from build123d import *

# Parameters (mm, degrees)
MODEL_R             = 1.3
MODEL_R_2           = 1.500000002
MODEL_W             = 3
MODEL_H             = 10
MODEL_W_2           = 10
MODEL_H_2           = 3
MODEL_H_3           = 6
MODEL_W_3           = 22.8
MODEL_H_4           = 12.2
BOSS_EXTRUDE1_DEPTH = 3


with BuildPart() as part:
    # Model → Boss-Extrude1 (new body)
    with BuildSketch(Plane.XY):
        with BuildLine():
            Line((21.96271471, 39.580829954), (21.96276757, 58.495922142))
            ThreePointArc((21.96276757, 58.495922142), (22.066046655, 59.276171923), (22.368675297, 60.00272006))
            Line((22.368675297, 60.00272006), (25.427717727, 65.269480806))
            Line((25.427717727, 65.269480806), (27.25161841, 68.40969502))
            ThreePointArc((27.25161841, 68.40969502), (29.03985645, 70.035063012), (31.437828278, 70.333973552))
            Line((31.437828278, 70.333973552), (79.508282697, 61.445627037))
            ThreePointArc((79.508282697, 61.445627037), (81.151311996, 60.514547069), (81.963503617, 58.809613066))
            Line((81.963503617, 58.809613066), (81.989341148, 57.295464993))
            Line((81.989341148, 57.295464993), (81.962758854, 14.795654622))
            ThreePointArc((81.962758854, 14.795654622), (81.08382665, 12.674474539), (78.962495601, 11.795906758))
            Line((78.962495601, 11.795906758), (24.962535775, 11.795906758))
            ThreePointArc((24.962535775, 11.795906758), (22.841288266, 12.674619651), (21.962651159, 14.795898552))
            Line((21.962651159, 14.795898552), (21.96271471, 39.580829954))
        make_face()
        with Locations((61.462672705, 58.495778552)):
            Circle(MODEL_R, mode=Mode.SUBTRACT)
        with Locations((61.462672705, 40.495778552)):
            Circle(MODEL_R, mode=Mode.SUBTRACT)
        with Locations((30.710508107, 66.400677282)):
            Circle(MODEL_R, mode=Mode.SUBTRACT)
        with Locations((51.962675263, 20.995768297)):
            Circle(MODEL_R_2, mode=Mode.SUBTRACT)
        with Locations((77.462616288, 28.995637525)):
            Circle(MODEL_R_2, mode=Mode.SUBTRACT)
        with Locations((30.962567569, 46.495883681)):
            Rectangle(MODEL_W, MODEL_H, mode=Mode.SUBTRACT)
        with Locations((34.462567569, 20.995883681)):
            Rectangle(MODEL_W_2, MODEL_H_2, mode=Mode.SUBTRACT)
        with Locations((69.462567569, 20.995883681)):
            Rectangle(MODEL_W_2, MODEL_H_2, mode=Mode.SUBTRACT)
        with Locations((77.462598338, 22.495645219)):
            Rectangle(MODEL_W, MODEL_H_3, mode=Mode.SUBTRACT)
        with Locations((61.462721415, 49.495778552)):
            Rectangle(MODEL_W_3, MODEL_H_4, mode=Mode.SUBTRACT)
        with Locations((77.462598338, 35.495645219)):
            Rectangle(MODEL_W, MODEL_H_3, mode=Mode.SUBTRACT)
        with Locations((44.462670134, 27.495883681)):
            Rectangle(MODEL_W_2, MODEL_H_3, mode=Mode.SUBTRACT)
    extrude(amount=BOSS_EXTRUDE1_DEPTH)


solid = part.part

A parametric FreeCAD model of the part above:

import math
import FreeCAD as App
import Part
import Sketcher
from FreeCAD import Vector

doc = App.newDocument("Part")
body = doc.addObject("PartDesign::Body", "Body")

sketch1 = doc.addObject("Sketcher::SketchObject", "Sketch")
body.addObject(sketch1)
sketch1.AttachmentSupport = (doc.XY_Plane, [""])
sketch1.MapMode = "FlatFace"
sketch1.addGeometry([
    Part.LineSegment(Vector(22, 58.5, 0), Vector(22, 39.6, 0)),
    Part.LineSegment(Vector(22, 39.6, 0), Vector(22, 14.8, 0)),
    Part.ArcOfCircle(Part.Circle(Vector(25, 14.8, 0), Vector(0, 0, 1), 3), math.radians(180), math.radians(270)),
    Part.LineSegment(Vector(25, 11.8, 0), Vector(79, 11.8, 0)),
    Part.ArcOfCircle(Part.Circle(Vector(79, 14.8, 0), Vector(0, 0, 1), 3), math.radians(-90), math.radians(0)),
    Part.LineSegment(Vector(82, 14.8, 0), Vector(82, 57.3, 0)),
    Part.LineSegment(Vector(82, 57.3, 0), Vector(82, 58.8, 0)),
    Part.ArcOfCircle(Part.Circle(Vector(78.9, 58.4, 0), Vector(0, 0, 1), 3.1), math.radians(8), math.radians(78)),
    Part.LineSegment(Vector(79.5, 61.4, 0), Vector(31.4, 70.3, 0)),
    Part.ArcOfCircle(Part.Circle(Vector(30.7, 66.4, 0), Vector(0, 0, 1), 4), math.radians(80), math.radians(150)),
    Part.LineSegment(Vector(27.3, 68.4, 0), Vector(25.4, 65.3, 0)),
    Part.LineSegment(Vector(25.4, 65.3, 0), Vector(22.4, 60, 0)),
    Part.ArcOfCircle(Part.Circle(Vector(25, 58.5, 0), Vector(0, 0, 1), 3), math.radians(150), math.radians(180)),
    Part.LineSegment(Vector(76, 19.5, 0), Vector(76, 25.5, 0)),
    Part.LineSegment(Vector(76, 25.5, 0), Vector(79, 25.5, 0)),
    Part.LineSegment(Vector(79, 25.5, 0), Vector(79, 19.5, 0)),
    Part.LineSegment(Vector(79, 19.5, 0), Vector(76, 19.5, 0)),
    Part.LineSegment(Vector(64.5, 19.5, 0), Vector(64.5, 22.5, 0)),
    Part.LineSegment(Vector(64.5, 22.5, 0), Vector(74.5, 22.5, 0)),
    Part.LineSegment(Vector(74.5, 22.5, 0), Vector(74.5, 19.5, 0)),
    Part.LineSegment(Vector(74.5, 19.5, 0), Vector(64.5, 19.5, 0)),
    Part.Circle(Vector(77.5, 29, 0), Vector(0, 0, 1), 1.5),
    Part.LineSegment(Vector(76, 32.5, 0), Vector(76, 38.5, 0)),
    Part.LineSegment(Vector(76, 38.5, 0), Vector(79, 38.5, 0)),
    Part.LineSegment(Vector(79, 38.5, 0), Vector(79, 32.5, 0)),
    Part.LineSegment(Vector(79, 32.5, 0), Vector(76, 32.5, 0)),
    Part.Circle(Vector(61.5, 40.5, 0), Vector(0, 0, 1), 1.3),
    Part.Circle(Vector(52, 21, 0), Vector(0, 0, 1), 1.5),
    Part.LineSegment(Vector(39.5, 24.5, 0), Vector(39.5, 30.5, 0)),
    Part.LineSegment(Vector(39.5, 30.5, 0), Vector(49.5, 30.5, 0)),
    Part.LineSegment(Vector(49.5, 30.5, 0), Vector(49.5, 24.5, 0)),
    Part.LineSegment(Vector(49.5, 24.5, 0), Vector(39.5, 24.5, 0)),
    Part.LineSegment(Vector(29.5, 19.5, 0), Vector(29.5, 22.5, 0)),
    Part.LineSegment(Vector(29.5, 22.5, 0), Vector(39.5, 22.5, 0)),
    Part.LineSegment(Vector(39.5, 22.5, 0), Vector(39.5, 19.5, 0)),
    Part.LineSegment(Vector(39.5, 19.5, 0), Vector(29.5, 19.5, 0)),
    Part.LineSegment(Vector(50.1, 43.4, 0), Vector(50.1, 55.6, 0)),
    Part.LineSegment(Vector(50.1, 55.6, 0), Vector(72.9, 55.6, 0)),
    Part.LineSegment(Vector(72.9, 55.6, 0), Vector(72.9, 43.4, 0)),
    Part.LineSegment(Vector(72.9, 43.4, 0), Vector(50.1, 43.4, 0)),
    Part.Circle(Vector(61.5, 58.5, 0), Vector(0, 0, 1), 1.3),
    Part.LineSegment(Vector(29.5, 41.5, 0), Vector(29.5, 51.5, 0)),
    Part.LineSegment(Vector(29.5, 51.5, 0), Vector(32.5, 51.5, 0)),
    Part.LineSegment(Vector(32.5, 51.5, 0), Vector(32.5, 41.5, 0)),
    Part.LineSegment(Vector(32.5, 41.5, 0), Vector(29.5, 41.5, 0)),
    Part.Circle(Vector(30.7, 66.4, 0), Vector(0, 0, 1), 1.3),
], False)
sketch1.addConstraint([
    Sketcher.Constraint("Coincident", 0, 2, 1, 1),
    Sketcher.Constraint("Tangent", 1, 2, 2, 1),
    Sketcher.Constraint("Coincident", 2, 2, 3, 1),
    Sketcher.Constraint("Coincident", 3, 2, 4, 1),
    Sketcher.Constraint("Coincident", 4, 2, 5, 1),
    Sketcher.Constraint("Coincident", 5, 2, 6, 1),
    Sketcher.Constraint("Coincident", 6, 2, 7, 1),
    Sketcher.Constraint("Coincident", 7, 2, 8, 1),
    Sketcher.Constraint("Coincident", 8, 2, 9, 1),
    Sketcher.Constraint("Coincident", 9, 2, 10, 1),
    Sketcher.Constraint("Coincident", 10, 2, 11, 1),
    Sketcher.Constraint("Coincident", 11, 2, 12, 1),
    Sketcher.Constraint("Coincident", 12, 2, 0, 1),
    Sketcher.Constraint("Coincident", 13, 2, 14, 1),
    Sketcher.Constraint("Coincident", 14, 2, 15, 1),
    Sketcher.Constraint("Coincident", 15, 2, 16, 1),
    Sketcher.Constraint("Coincident", 16, 2, 13, 1),
    Sketcher.Constraint("Coincident", 17, 2, 18, 1),
    Sketcher.Constraint("Coincident", 18, 2, 19, 1),
    Sketcher.Constraint("Coincident", 19, 2, 20, 1),
    Sketcher.Constraint("Coincident", 20, 2, 17, 1),
    Sketcher.Constraint("Coincident", 22, 2, 23, 1),
    Sketcher.Constraint("Coincident", 23, 2, 24, 1),
    Sketcher.Constraint("Coincident", 24, 2, 25, 1),
    Sketcher.Constraint("Coincident", 25, 2, 22, 1),
    Sketcher.Constraint("Coincident", 28, 2, 29, 1),
    Sketcher.Constraint("Coincident", 29, 2, 30, 1),
    Sketcher.Constraint("Coincident", 30, 2, 31, 1),
    Sketcher.Constraint("Coincident", 31, 2, 28, 1),
    Sketcher.Constraint("Coincident", 32, 2, 33, 1),
    Sketcher.Constraint("Coincident", 33, 2, 34, 1),
    Sketcher.Constraint("Coincident", 34, 2, 35, 1),
    Sketcher.Constraint("Coincident", 35, 2, 32, 1),
    Sketcher.Constraint("Coincident", 36, 2, 37, 1),
    Sketcher.Constraint("Coincident", 37, 2, 38, 1),
    Sketcher.Constraint("Coincident", 38, 2, 39, 1),
    Sketcher.Constraint("Coincident", 39, 2, 36, 1),
    Sketcher.Constraint("Coincident", 41, 2, 42, 1),
    Sketcher.Constraint("Coincident", 42, 2, 43, 1),
    Sketcher.Constraint("Coincident", 43, 2, 44, 1),
    Sketcher.Constraint("Coincident", 44, 2, 41, 1),
    Sketcher.Constraint("Horizontal", 3),
    Sketcher.Constraint("Vertical", 13),
    Sketcher.Constraint("Horizontal", 14),
    Sketcher.Constraint("Vertical", 15),
    Sketcher.Constraint("Horizontal", 16),
    Sketcher.Constraint("Vertical", 17),
    Sketcher.Constraint("Horizontal", 18),
    Sketcher.Constraint("Vertical", 19),
    Sketcher.Constraint("Horizontal", 20),
    Sketcher.Constraint("Vertical", 22),
    Sketcher.Constraint("Horizontal", 23),
    Sketcher.Constraint("Vertical", 24),
    Sketcher.Constraint("Horizontal", 25),
    Sketcher.Constraint("Vertical", 28),
    Sketcher.Constraint("Horizontal", 29),
    Sketcher.Constraint("Vertical", 30),
    Sketcher.Constraint("Horizontal", 31),
    Sketcher.Constraint("Vertical", 32),
    Sketcher.Constraint("Horizontal", 33),
    Sketcher.Constraint("Vertical", 34),
    Sketcher.Constraint("Horizontal", 35),
    Sketcher.Constraint("Vertical", 36),
    Sketcher.Constraint("Horizontal", 37),
    Sketcher.Constraint("Vertical", 38),
    Sketcher.Constraint("Horizontal", 39),
    Sketcher.Constraint("Vertical", 41),
    Sketcher.Constraint("Horizontal", 42),
    Sketcher.Constraint("Vertical", 43),
    Sketcher.Constraint("Horizontal", 44),
    Sketcher.Constraint("Equal", 21, 27),
    Sketcher.Constraint("Equal", 26, 40),
    Sketcher.Constraint("Equal", 40, 45),
    Sketcher.Constraint("Parallel", 0, 1),
    Sketcher.Constraint("Parallel", 10, 11),
    Sketcher.Constraint("Horizontal", 18, 2, 32, 2),
    Sketcher.Constraint("Horizontal", 20, 2, 34, 2),
    Sketcher.Constraint("Vertical", 26, 3, 40, 3),
    Sketcher.Constraint("Vertical", 16, 2, 22, 2),
    Sketcher.Constraint("Vertical", 15, 2, 23, 2),
    Sketcher.Constraint("Vertical", 35, 2, 41, 2),
    Sketcher.Constraint("Equal", 20, 29),
    Sketcher.Constraint("Equal", 31, 33),
    Sketcher.Constraint("Equal", 25, 42),
    Sketcher.Constraint("Equal", 44, 17),
    Sketcher.Constraint("Equal", 15, 22),
    Sketcher.Constraint("Equal", 24, 28),
    Sketcher.Constraint("Equal", 35, 41),
    Sketcher.Constraint("Diameter", 21, 3.0),
    Sketcher.Constraint("Diameter", 26, 2.6),
    Sketcher.Constraint("DistanceX", 14, 1, 14, 2, 3.0),
    Sketcher.Constraint("DistanceX", 18, 1, 18, 2, 10.0),
    Sketcher.Constraint("DistanceY", 13, 1, 13, 2, 6.0),
    Sketcher.Constraint("DistanceX", 37, 1, 37, 2, 22.8),
    Sketcher.Constraint("DistanceY", 36, 1, 36, 2, 12.2),
    Sketcher.Constraint("DistanceY", 26, 3, 40, 3, 18.0),
    Sketcher.Constraint("DistanceY", 13, 2, 22, 2, 13.0),
    Sketcher.Constraint("DistanceY", 17, 2, 29, 2, 8.0),
    Sketcher.Constraint("DistanceY", 28, 2, 43, 2, 11.0),
    Sketcher.Constraint("DistanceY", 36, 2, 40, 3, 2.9),
    Sketcher.Constraint("Radius", 4, 3.00024),
    Sketcher.Constraint("Radius", 9, 4.000052),
    Sketcher.Constraint("Radius", 2, 2.999984),
    Sketcher.Constraint("Radius", 7, 3.141134),
    Sketcher.Constraint("Radius", 12, 3.000427),
    Sketcher.Constraint("DistanceX", 3, 1, 3, 2, 53.99996),
    Sketcher.Constraint("DistanceY", -1, 1, 9, 3, 66.4006),
    Sketcher.Constraint("DistanceY", -1, 1, 1, 2, 14.795899),
    Sketcher.Constraint("DistanceX", -1, 1, 13, 2, 75.962598),
    Sketcher.Constraint("DistanceY", 40, 3, 45, 3, 7.904899),
    Sketcher.Constraint("DistanceX", 0, 2, 9, 3, 8.747798),
    Sketcher.Constraint("DistanceX", 10, 2, 9, 2, 1.823901),
    Sketcher.Constraint("DistanceY", 4, 3, 13, 2, 10.699498),
    Sketcher.Constraint("DistanceX", 12, 2, 41, 2, 7.4998),
    Sketcher.Constraint("Distance", 1, 24.784931),
    Sketcher.Constraint("Distance", 5, 42.499819),
    Sketcher.Constraint("Distance", 6, 1.514369),
    Sketcher.Constraint("Distance", 11, 6.09069),
    Sketcher.Constraint("DistanceY", -1, 1, 2, 3, 14.795891),
    Sketcher.Constraint("DistanceX", -1, 1, 4, 3, 78.962519),
    Sketcher.Constraint("DistanceX", -1, 1, 7, 3, 78.85277),
    Sketcher.Constraint("DistanceY", -1, 1, 26, 3, 40.495779),
    Sketcher.Constraint("DistanceY", -1, 1, 27, 3, 20.995768),
    Sketcher.Constraint("DistanceX", -1, 1, 45, 3, 30.710508),
    Sketcher.Constraint("DistanceX", -1, 1, 1, 2, 21.962651),
    Sketcher.Constraint("DistanceX", -1, 1, 5, 2, 81.989341),
    Sketcher.Constraint("DistanceX", -1, 1, 8, 2, 31.437828),
    Sketcher.Constraint("DistanceX", -1, 1, 9, 2, 27.251618),
    Sketcher.Constraint("DistanceY", -1, 1, 10, 2, 65.269481),
    Sketcher.Constraint("DistanceX", -1, 1, 28, 2, 39.46267),
    Sketcher.Constraint("DistanceX", -1, 1, 36, 2, 50.062721),
    Sketcher.Constraint("DistanceY", 2, 3, 7, 3, 43.577762),
    Sketcher.Constraint("DistanceY", 4, 3, 21, 3, 14.199491),
    Sketcher.Constraint("DistanceX", 2, 3, 21, 3, 52.499981),
    Sketcher.Constraint("DistanceX", 9, 3, 26, 3, 30.75216),
    Sketcher.Constraint("DistanceX", 27, 3, 21, 3, 25.499941),
    Sketcher.Constraint("DistanceX", 0, 2, 2, 2, 2.999821),
    Sketcher.Constraint("DistanceY", 7, 3, 6, 2, 0.435961),
    Sketcher.Constraint("DistanceX", 7, 2, 6, 2, 2.455221),
    Sketcher.Constraint("DistanceY", 12, 2, 10, 2, 6.773559),
    Sketcher.Constraint("DistanceX", 17, 2, 13, 2, 11.500031),
    Sketcher.Constraint("DistanceY", 17, 2, 13, 2, 2.999762),
])
pad1 = doc.addObject("PartDesign::Pad", "Pad")
body.addObject(pad1)
pad1.Profile = sketch1
pad1.Length = 3

doc.recompute()
